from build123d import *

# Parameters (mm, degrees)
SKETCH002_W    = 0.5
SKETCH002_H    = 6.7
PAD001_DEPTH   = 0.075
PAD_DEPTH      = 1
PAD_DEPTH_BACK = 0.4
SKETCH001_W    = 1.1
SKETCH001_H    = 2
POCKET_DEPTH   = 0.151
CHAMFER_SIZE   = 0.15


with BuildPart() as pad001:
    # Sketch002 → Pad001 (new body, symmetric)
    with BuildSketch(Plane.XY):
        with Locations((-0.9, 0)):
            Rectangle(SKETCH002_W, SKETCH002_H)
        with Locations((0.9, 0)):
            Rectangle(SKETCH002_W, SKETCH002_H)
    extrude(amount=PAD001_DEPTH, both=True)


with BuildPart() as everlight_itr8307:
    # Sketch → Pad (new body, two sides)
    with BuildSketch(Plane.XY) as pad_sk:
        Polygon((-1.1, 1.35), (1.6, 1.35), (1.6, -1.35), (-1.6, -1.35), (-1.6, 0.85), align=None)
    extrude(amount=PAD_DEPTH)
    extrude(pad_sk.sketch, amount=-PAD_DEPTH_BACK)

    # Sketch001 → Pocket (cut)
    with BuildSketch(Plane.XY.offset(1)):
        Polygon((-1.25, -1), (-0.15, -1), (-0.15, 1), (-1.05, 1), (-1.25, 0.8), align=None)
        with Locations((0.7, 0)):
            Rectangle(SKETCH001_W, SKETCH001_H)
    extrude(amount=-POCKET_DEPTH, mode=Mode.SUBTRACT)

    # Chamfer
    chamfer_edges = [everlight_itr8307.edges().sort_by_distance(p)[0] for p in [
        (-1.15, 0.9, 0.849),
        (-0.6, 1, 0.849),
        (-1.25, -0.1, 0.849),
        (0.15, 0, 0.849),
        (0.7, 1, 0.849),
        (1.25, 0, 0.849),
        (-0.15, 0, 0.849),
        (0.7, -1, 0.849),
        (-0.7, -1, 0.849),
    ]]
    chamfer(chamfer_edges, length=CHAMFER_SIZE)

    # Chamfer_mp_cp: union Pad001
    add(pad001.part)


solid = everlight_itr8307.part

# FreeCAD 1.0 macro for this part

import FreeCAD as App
import Part
import Sketcher

V = App.Vector
Q = App.Units.Quantity


def edges_at(feature, points):
    """Names of the edges that pass closest to the given points."""
    edges = feature.Shape.Edges
    near = lambda p: min(range(len(edges)), key=lambda i: edges[i].distToShape(Part.Vertex(*p))[0])
    return sorted({f"Edge{near(p) + 1}" for p in points})


def add_polygon(sketch, points):
    """Adds a closed chain of lines whose ends are joined by coincident constraints."""
    first, n = sketch.GeometryCount, len(points)
    for a, b in zip(points, points[1:] + points[:1]):
        sketch.addGeometry(Part.LineSegment(App.Vector(*a, 0), App.Vector(*b, 0)), False)
    for i in range(n):
        sketch.addConstraint(Sketcher.Constraint("Coincident", first + i, 2, first + (i + 1) % n, 1))

doc = App.newDocument("Part")
body = doc.addObject("PartDesign::Body", "Body")
body.AllowCompound = True

sketch1 = body.newObject("Sketcher::SketchObject", "Sketch")
sketch1.AttachmentSupport = (doc.getObject("XY_Plane"), [""])
sketch1.MapMode = "FlatFace"
add_polygon(sketch1, [(-1.15, 3.35), (-1.15, -3.35), (-0.65, -3.35), (-0.65, 3.35)])
add_polygon(sketch1, [(0.65, 3.35), (0.65, -3.35), (1.15, -3.35), (1.15, 3.35)])
sketch1.addConstraint([
    Sketcher.Constraint("Vertical", 0),
    Sketcher.Constraint("Horizontal", 1),
    Sketcher.Constraint("Vertical", 2),
    Sketcher.Constraint("Horizontal", 3),
    Sketcher.Constraint("Vertical", 4),
    Sketcher.Constraint("Horizontal", 5),
    Sketcher.Constraint("Vertical", 6),
    Sketcher.Constraint("Horizontal", 7),
    Sketcher.Constraint("Symmetric", 2, 2, 4, 2, -1, 1),
    Sketcher.Constraint("Symmetric", 0, 2, 6, 2, -1, 1),
    Sketcher.Constraint("Horizontal", 1, 2, 4, 2),
    Sketcher.Constraint("DistanceX", 1, 1, 1, 2, Q("0.5 mm")),
    Sketcher.Constraint("DistanceY", 0, 2, 0, 1, Q("6.7 mm")),
    Sketcher.Constraint("DistanceX", 1, 2, 4, 2, Q("1.3 mm")),
])
pad1 = body.newObject("PartDesign::Pad", "Pad")
pad1.Profile = sketch1
pad1.Length = 0.15
pad1.Midplane = True
body2 = doc.addObject("PartDesign::Body", "Body001")

sketch2 = body2.newObject("Sketcher::SketchObject", "Sketch001")
sketch2.AttachmentSupport = (doc.getObject("XY_Plane001"), [""])
sketch2.MapMode = "FlatFace"
add_polygon(sketch2, [(1.6, 1.35), (-1.1, 1.35), (-1.6, 0.85), (-1.6, -1.35), (1.6, -1.35)])
sketch2.addConstraint([
    Sketcher.Constraint("Horizontal", 0),
    Sketcher.Constraint("Vertical", 2),
    Sketcher.Constraint("Horizontal", 3),
    Sketcher.Constraint("Vertical", 4),
    Sketcher.Constraint("Symmetric", 2, 2, 4, 2, -1, 1),
    Sketcher.Constraint("Equal", 0, 4),
    Sketcher.Constraint("Angle", 1, Q("-135 deg")),
    Sketcher.Constraint("DistanceX", 0, 2, 0, 1, Q("2.7 mm")),
    Sketcher.Constraint("DistanceX", 3, 1, 3, 2, Q("3.2 mm")),
])
pad2 = body2.newObject("PartDesign::Pad", "Pad001")
pad2.Profile = sketch2
pad2.Type = "TwoLengths"
pad2.Length = 1
pad2.Length2 = 0.4

sketch3 = body2.newObject("Sketcher::SketchObject", "Sketch002")
sketch3.AttachmentSupport = (doc.getObject("XY_Plane001"), [""])
sketch3.MapMode = "FlatFace"
sketch3.AttachmentOffset = App.Placement(V(0, 0, 1), App.Rotation())
add_polygon(sketch3, [(-1.25, -1), (-0.15, -1), (-0.15, 1), (-1.05, 1), (-1.25, 0.8)])
add_polygon(sketch3, [(0.15, 1), (0.15, -1), (1.25, -1), (1.25, 1)])
sketch3.addConstraint([
    Sketcher.Constraint("Horizontal", 0),
    Sketcher.Constraint("Vertical", 1),
    Sketcher.Constraint("Horizontal", 2),
    Sketcher.Constraint("Vertical", 4),
    Sketcher.Constraint("Vertical", 5),
    Sketcher.Constraint("Horizontal", 6),
    Sketcher.Constraint("Vertical", 7),
    Sketcher.Constraint("Horizontal", 8),
    Sketcher.Constraint("Symmetric", 1, 2, 5, 2, -1, 1),
    Sketcher.Constraint("Symmetric", 4, 2, 7, 2, -1, 1),
    Sketcher.Constraint("Horizontal", 4, 2, 5, 2),
    Sketcher.Constraint("DistanceY", 1, 1, 1, 2, Q("2 mm")),
    Sketcher.Constraint("Angle", 3, Q("-135 deg")),
    Sketcher.Constraint("DistanceX", 0, 1, 0, 2, Q("1.1 mm")),
    Sketcher.Constraint("DistanceX", 2, 2, 2, 1, Q("0.9 mm")),
    Sketcher.Constraint("DistanceX", 0, 2, 5, 2, Q("0.3 mm")),
])
pocket1 = body2.newObject("PartDesign::Pocket", "Pocket")
pocket1.Profile = sketch3
pocket1.Length = 0.151
doc.recompute()

chamfer = body2.newObject("PartDesign::Chamfer", "Chamfer")
chamfer.Base = (pocket1, edges_at(pocket1, [
    (-1.15, 0.9, 0.849),
    (-0.6, 1, 0.849),
    (-1.25, -0.1, 0.849),
    (0.15, 0, 0.849),
    (0.7, 1, 0.849),
    (1.25, 0, 0.849),
    (-0.15, 0, 0.849),
    (0.7, -1, 0.849),
    (-0.7, -1, 0.849),
]))
chamfer.Size = 0.15
doc.recompute()

boolean = body2.newObject("PartDesign::Boolean", "Boolean")
boolean.Type = "Fuse"
boolean.addObjects([body])

doc.recompute()
